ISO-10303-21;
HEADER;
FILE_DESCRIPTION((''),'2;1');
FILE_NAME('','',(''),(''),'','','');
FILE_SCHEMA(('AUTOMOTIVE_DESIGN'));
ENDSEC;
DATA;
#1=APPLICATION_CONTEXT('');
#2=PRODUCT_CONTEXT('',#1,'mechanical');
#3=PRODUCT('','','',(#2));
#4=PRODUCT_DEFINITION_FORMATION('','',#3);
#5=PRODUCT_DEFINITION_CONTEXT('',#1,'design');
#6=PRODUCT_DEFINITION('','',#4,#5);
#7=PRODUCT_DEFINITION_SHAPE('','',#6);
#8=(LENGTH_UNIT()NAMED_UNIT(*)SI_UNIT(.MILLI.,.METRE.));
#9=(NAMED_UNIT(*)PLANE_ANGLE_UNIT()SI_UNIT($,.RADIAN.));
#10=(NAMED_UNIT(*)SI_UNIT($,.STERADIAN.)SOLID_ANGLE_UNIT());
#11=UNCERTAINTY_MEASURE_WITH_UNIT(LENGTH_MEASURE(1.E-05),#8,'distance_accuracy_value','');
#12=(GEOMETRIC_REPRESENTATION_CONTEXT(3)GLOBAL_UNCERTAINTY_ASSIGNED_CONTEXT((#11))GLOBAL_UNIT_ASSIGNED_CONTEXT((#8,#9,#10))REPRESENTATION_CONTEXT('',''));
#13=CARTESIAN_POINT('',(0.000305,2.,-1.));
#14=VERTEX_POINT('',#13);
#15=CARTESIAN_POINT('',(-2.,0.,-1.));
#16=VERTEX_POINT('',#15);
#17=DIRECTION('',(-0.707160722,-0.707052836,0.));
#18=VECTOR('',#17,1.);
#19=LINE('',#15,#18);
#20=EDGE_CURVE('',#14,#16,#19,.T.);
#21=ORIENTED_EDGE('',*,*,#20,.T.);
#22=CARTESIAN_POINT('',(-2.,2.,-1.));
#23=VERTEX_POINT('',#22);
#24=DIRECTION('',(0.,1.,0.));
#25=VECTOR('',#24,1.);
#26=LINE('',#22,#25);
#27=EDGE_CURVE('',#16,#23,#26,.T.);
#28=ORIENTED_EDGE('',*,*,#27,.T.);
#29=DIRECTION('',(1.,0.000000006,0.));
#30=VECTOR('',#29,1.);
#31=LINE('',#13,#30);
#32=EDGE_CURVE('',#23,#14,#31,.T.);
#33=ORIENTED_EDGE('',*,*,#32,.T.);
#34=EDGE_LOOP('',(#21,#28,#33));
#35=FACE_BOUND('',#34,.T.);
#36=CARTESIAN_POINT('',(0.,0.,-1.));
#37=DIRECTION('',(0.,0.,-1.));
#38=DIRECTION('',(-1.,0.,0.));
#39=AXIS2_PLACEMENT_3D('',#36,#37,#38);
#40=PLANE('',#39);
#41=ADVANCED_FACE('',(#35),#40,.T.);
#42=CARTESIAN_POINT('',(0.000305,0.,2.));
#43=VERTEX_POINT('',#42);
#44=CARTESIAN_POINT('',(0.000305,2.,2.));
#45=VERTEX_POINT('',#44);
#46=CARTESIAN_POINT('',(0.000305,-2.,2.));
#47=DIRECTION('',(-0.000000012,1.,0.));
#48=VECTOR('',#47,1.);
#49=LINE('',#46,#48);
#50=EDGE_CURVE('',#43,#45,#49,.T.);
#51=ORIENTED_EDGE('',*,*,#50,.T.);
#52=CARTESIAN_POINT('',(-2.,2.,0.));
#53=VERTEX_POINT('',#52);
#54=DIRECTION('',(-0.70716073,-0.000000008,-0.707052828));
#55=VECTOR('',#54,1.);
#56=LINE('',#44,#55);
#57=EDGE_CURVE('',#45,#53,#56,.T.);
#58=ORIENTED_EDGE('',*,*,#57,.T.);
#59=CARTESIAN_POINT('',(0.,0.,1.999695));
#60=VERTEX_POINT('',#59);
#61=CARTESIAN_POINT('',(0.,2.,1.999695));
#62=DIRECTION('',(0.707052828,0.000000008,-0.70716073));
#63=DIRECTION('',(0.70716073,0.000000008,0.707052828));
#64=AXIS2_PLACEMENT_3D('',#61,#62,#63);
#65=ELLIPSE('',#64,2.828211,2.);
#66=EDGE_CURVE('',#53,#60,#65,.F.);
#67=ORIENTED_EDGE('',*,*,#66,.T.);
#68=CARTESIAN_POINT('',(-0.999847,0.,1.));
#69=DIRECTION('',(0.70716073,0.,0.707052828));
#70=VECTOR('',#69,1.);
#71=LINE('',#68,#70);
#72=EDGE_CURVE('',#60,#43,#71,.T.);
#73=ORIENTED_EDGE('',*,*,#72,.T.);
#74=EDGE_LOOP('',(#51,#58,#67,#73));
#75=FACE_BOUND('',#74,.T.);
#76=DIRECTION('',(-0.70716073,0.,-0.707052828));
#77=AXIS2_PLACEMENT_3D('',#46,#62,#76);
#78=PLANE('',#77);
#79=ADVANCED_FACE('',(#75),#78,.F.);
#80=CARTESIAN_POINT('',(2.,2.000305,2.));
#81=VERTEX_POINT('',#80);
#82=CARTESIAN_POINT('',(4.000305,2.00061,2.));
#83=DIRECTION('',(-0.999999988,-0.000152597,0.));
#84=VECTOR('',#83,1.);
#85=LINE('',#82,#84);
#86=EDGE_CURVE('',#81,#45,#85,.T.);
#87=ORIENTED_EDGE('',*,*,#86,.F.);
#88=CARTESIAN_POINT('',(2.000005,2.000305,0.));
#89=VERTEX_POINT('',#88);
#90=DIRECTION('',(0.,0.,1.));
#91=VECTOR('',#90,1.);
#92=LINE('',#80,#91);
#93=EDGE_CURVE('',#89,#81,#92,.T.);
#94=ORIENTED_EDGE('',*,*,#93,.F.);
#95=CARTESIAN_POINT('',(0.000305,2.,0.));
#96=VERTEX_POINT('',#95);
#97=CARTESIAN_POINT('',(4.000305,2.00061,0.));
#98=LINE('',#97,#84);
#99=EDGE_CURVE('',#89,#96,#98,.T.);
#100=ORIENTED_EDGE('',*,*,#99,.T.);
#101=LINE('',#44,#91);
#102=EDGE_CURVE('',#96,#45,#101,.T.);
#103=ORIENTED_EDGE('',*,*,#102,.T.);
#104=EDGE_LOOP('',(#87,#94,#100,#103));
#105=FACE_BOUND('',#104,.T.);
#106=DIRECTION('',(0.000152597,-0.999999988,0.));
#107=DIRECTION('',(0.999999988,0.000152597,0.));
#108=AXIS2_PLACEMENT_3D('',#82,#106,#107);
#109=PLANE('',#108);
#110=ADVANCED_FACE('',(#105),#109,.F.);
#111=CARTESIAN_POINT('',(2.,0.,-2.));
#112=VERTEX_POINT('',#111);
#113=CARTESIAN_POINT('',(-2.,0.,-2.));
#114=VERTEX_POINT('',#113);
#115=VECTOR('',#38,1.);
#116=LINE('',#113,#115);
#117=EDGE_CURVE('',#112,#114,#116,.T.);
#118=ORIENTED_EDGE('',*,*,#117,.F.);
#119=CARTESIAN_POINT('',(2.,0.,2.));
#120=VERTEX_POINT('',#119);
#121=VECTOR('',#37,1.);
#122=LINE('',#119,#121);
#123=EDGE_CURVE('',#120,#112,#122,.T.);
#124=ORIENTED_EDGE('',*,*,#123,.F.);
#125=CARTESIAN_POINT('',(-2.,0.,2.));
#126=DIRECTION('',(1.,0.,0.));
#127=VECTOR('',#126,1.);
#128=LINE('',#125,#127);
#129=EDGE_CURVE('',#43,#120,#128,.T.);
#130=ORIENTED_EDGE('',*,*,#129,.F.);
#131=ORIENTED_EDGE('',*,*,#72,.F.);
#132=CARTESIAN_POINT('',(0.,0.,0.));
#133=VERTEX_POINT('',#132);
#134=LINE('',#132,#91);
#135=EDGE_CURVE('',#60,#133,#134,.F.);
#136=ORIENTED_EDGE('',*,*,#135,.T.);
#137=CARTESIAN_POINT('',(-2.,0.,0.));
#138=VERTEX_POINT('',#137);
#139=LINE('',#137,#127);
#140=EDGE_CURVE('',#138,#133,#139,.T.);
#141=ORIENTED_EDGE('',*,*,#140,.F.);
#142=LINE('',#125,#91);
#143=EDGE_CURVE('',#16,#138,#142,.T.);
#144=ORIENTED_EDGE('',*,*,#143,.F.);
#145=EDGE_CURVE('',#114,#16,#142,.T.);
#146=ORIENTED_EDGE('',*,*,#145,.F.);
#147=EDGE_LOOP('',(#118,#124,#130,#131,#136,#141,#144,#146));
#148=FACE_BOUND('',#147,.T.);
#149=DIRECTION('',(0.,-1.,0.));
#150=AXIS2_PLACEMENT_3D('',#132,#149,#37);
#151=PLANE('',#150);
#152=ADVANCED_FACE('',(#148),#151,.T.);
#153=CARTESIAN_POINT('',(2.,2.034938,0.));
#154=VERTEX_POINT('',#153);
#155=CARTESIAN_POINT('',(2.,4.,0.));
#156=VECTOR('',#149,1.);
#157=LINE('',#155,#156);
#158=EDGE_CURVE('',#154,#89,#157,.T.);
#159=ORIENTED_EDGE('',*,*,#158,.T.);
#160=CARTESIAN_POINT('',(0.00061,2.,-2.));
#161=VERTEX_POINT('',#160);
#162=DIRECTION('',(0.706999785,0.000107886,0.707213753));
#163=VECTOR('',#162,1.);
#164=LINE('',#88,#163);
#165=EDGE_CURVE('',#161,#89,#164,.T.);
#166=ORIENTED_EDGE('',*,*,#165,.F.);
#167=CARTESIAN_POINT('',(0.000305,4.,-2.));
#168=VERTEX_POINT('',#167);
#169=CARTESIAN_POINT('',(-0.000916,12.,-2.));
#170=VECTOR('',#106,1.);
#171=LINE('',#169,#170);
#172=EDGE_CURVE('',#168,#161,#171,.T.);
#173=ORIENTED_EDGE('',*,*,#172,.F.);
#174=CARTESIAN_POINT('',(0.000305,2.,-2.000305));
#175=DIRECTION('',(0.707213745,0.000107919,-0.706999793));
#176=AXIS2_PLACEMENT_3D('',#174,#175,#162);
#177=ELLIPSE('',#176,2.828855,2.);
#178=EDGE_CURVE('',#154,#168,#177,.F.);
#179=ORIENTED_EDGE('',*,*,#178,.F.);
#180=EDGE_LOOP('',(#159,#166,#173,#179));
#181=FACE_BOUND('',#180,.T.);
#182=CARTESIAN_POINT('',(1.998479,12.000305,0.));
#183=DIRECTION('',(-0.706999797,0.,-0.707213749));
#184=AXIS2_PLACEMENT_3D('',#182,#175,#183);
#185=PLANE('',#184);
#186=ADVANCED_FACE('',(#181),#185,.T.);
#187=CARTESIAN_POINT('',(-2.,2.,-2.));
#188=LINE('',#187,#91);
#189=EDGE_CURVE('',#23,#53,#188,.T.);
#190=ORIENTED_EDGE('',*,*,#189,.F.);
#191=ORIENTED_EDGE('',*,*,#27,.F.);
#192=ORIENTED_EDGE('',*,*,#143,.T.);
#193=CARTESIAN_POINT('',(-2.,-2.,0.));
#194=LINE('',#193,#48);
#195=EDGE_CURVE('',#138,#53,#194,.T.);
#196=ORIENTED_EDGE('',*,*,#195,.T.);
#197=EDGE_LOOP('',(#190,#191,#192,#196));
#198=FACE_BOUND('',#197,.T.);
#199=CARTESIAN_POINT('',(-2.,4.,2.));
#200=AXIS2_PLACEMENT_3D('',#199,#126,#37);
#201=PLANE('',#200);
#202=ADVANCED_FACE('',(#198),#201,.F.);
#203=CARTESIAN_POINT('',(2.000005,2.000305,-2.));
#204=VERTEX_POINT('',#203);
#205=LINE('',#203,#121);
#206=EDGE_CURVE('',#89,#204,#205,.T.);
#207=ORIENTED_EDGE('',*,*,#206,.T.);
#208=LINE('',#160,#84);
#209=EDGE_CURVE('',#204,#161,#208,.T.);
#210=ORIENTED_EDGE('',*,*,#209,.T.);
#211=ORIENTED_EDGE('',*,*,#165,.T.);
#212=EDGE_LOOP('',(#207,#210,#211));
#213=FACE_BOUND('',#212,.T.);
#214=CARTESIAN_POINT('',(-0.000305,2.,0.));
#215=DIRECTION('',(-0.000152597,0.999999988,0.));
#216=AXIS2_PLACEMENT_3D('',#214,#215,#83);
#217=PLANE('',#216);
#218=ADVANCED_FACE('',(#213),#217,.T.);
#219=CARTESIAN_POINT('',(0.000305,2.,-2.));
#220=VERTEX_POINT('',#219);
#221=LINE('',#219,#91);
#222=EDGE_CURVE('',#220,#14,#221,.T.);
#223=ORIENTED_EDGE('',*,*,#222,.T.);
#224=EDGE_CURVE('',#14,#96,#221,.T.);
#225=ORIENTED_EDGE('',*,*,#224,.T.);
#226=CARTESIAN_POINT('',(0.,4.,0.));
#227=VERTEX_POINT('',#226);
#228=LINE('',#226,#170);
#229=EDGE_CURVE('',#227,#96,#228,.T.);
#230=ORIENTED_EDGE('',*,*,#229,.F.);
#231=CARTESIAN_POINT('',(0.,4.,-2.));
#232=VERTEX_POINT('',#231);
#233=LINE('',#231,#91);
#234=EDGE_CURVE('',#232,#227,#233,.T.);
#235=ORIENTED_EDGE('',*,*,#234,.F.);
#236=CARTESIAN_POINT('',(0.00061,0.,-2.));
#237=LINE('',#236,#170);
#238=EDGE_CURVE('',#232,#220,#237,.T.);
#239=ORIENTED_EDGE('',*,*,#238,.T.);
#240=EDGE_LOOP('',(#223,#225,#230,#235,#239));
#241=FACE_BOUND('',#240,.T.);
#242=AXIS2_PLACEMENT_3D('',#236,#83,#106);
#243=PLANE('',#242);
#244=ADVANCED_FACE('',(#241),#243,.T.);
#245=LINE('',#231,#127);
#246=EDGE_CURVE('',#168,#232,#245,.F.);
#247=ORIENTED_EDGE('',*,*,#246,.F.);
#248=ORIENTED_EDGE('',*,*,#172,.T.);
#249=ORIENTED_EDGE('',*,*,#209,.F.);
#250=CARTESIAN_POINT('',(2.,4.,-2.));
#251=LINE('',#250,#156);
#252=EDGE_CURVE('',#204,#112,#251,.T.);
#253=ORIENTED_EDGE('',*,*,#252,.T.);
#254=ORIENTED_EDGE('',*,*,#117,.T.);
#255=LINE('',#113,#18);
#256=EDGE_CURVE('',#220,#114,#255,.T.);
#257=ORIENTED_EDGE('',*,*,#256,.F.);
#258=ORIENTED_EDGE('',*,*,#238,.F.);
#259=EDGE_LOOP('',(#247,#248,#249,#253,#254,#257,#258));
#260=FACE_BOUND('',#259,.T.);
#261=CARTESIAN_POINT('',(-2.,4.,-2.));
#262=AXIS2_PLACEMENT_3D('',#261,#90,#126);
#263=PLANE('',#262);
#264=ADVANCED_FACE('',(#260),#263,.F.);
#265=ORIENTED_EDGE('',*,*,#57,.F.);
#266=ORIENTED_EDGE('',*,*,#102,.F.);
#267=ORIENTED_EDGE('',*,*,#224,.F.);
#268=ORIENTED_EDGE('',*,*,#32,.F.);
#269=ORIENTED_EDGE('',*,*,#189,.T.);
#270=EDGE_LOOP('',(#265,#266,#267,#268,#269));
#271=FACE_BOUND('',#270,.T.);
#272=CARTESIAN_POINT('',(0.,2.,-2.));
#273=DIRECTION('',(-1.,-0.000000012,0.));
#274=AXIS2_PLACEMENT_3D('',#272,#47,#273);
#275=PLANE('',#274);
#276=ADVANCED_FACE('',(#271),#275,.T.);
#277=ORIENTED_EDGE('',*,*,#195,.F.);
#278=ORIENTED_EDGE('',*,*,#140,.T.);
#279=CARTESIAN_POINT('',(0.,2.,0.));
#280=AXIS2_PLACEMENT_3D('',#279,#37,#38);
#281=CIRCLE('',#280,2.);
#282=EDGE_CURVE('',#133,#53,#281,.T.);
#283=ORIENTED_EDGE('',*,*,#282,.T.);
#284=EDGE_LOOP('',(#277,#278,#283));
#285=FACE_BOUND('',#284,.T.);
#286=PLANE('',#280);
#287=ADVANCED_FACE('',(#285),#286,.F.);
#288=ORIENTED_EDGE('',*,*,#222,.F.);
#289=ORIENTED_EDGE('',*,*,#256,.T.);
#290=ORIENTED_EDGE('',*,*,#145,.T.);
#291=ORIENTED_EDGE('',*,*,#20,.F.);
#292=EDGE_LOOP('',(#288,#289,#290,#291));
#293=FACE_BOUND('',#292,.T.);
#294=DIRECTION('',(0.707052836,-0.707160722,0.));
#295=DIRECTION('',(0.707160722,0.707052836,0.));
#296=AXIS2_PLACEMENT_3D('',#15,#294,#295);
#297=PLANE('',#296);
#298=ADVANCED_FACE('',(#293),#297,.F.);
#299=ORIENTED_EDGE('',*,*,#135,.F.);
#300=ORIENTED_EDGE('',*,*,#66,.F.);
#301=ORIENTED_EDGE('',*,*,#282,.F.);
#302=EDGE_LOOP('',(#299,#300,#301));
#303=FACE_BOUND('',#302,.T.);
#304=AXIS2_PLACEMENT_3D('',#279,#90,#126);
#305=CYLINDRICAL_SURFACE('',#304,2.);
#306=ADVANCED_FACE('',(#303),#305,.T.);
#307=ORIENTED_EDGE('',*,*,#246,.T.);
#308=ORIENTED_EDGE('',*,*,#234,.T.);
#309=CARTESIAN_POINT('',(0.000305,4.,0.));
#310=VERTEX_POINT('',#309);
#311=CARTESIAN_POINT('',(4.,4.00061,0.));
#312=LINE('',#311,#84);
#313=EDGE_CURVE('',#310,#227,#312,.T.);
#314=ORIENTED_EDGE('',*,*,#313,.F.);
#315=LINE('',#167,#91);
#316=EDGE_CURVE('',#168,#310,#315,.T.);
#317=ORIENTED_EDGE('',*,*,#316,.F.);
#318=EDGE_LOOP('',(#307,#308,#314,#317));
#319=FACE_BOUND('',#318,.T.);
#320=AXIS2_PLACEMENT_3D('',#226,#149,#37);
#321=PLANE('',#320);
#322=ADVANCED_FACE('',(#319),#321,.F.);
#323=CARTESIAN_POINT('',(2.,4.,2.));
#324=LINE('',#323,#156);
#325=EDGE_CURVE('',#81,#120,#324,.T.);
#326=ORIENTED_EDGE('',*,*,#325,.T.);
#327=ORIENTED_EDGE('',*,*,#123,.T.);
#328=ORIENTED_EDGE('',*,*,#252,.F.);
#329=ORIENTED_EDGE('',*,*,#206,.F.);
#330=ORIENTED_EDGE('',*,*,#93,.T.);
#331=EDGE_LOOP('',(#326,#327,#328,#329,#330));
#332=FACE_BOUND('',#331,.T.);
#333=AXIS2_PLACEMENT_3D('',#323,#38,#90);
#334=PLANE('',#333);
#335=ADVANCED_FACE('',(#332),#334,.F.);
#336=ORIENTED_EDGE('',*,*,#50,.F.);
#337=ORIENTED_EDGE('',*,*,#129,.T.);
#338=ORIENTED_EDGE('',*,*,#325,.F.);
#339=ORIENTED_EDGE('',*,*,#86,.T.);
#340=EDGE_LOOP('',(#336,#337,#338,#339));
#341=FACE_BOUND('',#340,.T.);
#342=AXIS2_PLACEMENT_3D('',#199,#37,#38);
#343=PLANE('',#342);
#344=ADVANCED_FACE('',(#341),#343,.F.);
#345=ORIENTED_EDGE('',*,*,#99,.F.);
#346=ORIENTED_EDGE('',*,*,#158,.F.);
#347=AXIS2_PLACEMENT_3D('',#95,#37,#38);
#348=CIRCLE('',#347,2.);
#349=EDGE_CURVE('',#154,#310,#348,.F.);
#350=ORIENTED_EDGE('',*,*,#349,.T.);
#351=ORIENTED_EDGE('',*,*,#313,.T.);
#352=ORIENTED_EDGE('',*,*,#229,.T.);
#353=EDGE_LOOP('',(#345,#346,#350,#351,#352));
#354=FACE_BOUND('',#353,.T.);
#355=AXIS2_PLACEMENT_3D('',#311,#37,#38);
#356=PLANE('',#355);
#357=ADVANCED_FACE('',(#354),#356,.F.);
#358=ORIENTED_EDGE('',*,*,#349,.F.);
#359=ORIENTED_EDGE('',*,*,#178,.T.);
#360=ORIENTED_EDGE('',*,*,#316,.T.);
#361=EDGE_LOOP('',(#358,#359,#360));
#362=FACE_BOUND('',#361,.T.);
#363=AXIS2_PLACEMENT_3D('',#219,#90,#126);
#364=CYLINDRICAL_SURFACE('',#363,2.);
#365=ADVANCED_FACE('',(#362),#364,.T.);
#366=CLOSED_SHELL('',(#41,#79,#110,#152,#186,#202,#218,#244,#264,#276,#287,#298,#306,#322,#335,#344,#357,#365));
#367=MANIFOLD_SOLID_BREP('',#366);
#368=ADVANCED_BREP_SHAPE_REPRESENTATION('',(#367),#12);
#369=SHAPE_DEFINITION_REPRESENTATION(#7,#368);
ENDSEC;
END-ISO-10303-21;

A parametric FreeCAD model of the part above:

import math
import FreeCAD as App
import Part
import Sketcher
from FreeCAD import Vector
Q = App.Units.Quantity


def add_polygon(sketch, points):
    """Adds a closed chain of lines whose ends are joined by coincident constraints."""
    first, n = sketch.GeometryCount, len(points)
    for a, b in zip(points, points[1:] + points[:1]):
        sketch.addGeometry(Part.LineSegment(App.Vector(*a, 0), App.Vector(*b, 0)), False)
    for i in range(n):
        sketch.addConstraint(Sketcher.Constraint("Coincident", first + i, 2, first + (i + 1) % n, 1))

doc = App.newDocument("Part")
params = doc.addObject("Spreadsheet::Sheet", "Params")
for row, (alias, value) in enumerate([
    ("sketch1_width", "4 mm"),
    ("pad1_length", "4 mm"),
    ("sketch2_radius", "2 mm"),
    ("pocket1_length", "4 mm"),
    ("sketch3_height", "2 mm"),
    ("pocket2_length", "4 mm"),
    ("sketch4_width", "2 mm"),
    ("pocket3_length", "4 mm"),
    ("sketch5_height", "2 mm"),
    ("pocket4_length", "10 mm"),
    ("sketch6_height", "2 mm"),
    ("pocket5_length", "1 mm"),
    ("sketch7_radius", "2 mm"),
    ("pocket6_length", "2 mm"),
], start=1):
    params.set(f"A{row}", alias)
    params.set(f"B{row}", "=" + value)
    params.setAlias(f"B{row}", alias)

body = doc.addObject("PartDesign::Body", "Body")

# Sketch on XZ plane
sketch1 = body.newObject("Sketcher::SketchObject", "Sketch")
sketch1.AttachmentSupport = (doc.getObject("XZ_Plane"), [""])
sketch1.MapMode = "FlatFace"
add_polygon(sketch1, [(-2, -2), (-2, 2), (2, 2), (2, -2)])  # lines 0-3
sketch1.addConstraint([
    Sketcher.Constraint("Vertical", 0),
    Sketcher.Constraint("Horizontal", 1),
    Sketcher.Constraint("Vertical", 2),
    Sketcher.Constraint("Horizontal", 3),
    Sketcher.Constraint("Symmetric", 0, 2, 2, 2, -1, 1),
    Sketcher.Constraint("Equal", 3, 0),
    Sketcher.Constraint("DistanceX", 1, 1, 1, 2, Q("4 mm")),
])
sketch1.setExpression("Constraints[10]", "Params.sketch1_width")
pad1 = body.newObject("PartDesign::Pad", "Pad")
pad1.Profile = sketch1
pad1.setExpression("Length", "Params.pad1_length")
pad1.Reversed = True

# Sketch on XY plane
sketch2 = body.newObject("Sketcher::SketchObject", "Sketch001")
sketch2.AttachmentSupport = (doc.getObject("XY_Plane"), [""])
sketch2.MapMode = "FlatFace"
sketch2.AttachmentOffset = App.Placement(Vector(0, 0, 2), App.Rotation())
add_polygon(sketch2, [(0, 2), (0, 4), (-2, 4), (-2, 2)])  # lines 0-3
sketch2.addGeometry(Part.LineSegment(Vector(2, 4, 0), Vector(0, 4, 0)), False)  # 4
sketch2.addGeometry(Part.ArcOfCircle(Part.Circle(Vector(0, 2, 0), Vector(0, 0, 1), 2), math.radians(1), math.radians(90)), False)  # 5
sketch2.addGeometry(Part.LineSegment(Vector(2, 2, 0), Vector(2, 4, 0)), False)  # 6
sketch2.addConstraint([
    Sketcher.Constraint("Coincident", 4, 2, 5, 2),
    Sketcher.Constraint("Coincident", 5, 1, 6, 1),
    Sketcher.Constraint("Coincident", 6, 2, 4, 1),
    Sketcher.Constraint("Horizontal", 1),
    Sketcher.Constraint("Vertical", 2),
    Sketcher.Constraint("Horizontal", 3),
    Sketcher.Constraint("Horizontal", 4),
    Sketcher.Constraint("Vertical", 6),
    Sketcher.Constraint("Coincident", 3, 2, 5, 3),
    Sketcher.Constraint("Coincident", 4, 2, 0, 2),
    Sketcher.Constraint("PointOnObject", 0, 2, -2),
    Sketcher.Constraint("Equal", 1, 4),
    Sketcher.Constraint("Equal", 4, 2),
    Sketcher.Constraint("Radius", 5, Q("2 mm")),
    Sketcher.Constraint("DistanceY", -1, 1, 5, 3, Q("2 mm")),
    Sketcher.Constraint("DistanceY", 6, 1, 6, 2, Q("1.965062 mm")),
])
sketch2.setExpression("Constraints[17]", "Params.sketch2_radius")
pocket1 = body.newObject("PartDesign::Pocket", "Pocket")
pocket1.Profile = sketch2
pocket1.setExpression("Length", "Params.pocket1_length")

# Sketch on XZ plane
sketch3 = body.newObject("Sketcher::SketchObject", "Sketch002")
sketch3.AttachmentSupport = (doc.getObject("XZ_Plane"), [""])
sketch3.MapMode = "FlatFace"
sketch3.AttachmentOffset = App.Placement(Vector(0, 0, -2), App.Rotation())
add_polygon(sketch3, [(0, 2), (-2, 0), (-2, 2)])  # lines 0-2
sketch3.addConstraint([
    Sketcher.Constraint("Vertical", 1),
    Sketcher.Constraint("Horizontal", 2),
    Sketcher.Constraint("PointOnObject", 0, 2, -1),
    Sketcher.Constraint("DistanceY", 1, 1, 1, 2, Q("2 mm")),
    Sketcher.Constraint("DistanceX", 0, 2, -1, 1, Q("2 mm")),
    Sketcher.Constraint("DistanceX", 2, 1, 2, 2, Q("2.000305 mm")),
])
sketch3.setExpression("Constraints[6]", "Params.sketch3_height")
pocket2 = body.newObject("PartDesign::Pocket", "Pocket001")
pocket2.Profile = sketch3
pocket2.setExpression("Length", "Params.pocket2_length")
pocket2.Reversed = True

# Sketch on an angled plane
sketch4 = body.newObject("Sketcher::SketchObject", "Sketch003")
sketch4.Placement = App.Placement(Vector(0.00061, 0, 0), App.Rotation(Vector(0, 0, 1), Vector(-0.000152597, 0.999999988, 0), Vector(-0.999999988, -0.000152597, 0), "ZXY"))
add_polygon(sketch4, [(0, 4), (0, 2), (2, 2), (2, 4)])  # lines 0-3
sketch4.addConstraint([
    Sketcher.Constraint("Vertical", 0),
    Sketcher.Constraint("Horizontal", 1),
    Sketcher.Constraint("Vertical", 2),
    Sketcher.Constraint("Horizontal", 3),
    Sketcher.Constraint("PointOnObject", 0, 2, -2),
    Sketcher.Constraint("Equal", 3, 0),
    Sketcher.Constraint("DistanceX", 1, 1, 1, 2, Q("2 mm")),
    Sketcher.Constraint("DistanceY", -1, 1, 0, 2, Q("2 mm")),
])
sketch4.setExpression("Constraints[10]", "Params.sketch4_width")
pocket3 = body.newObject("PartDesign::Pocket", "Pocket002")
pocket3.Profile = sketch4
pocket3.setExpression("Length", "Params.pocket3_length")

# Sketch on an angled plane
sketch5 = body.newObject("Sketcher::SketchObject", "Sketch004")
sketch5.Placement = App.Placement(Vector(-0.000305, 2, 0), App.Rotation(Vector(0.999999988, 0.000152597, 0), Vector(0, 0, -0.999999999), Vector(-0.000152597, 0.999999988, 0), "ZXY"))
add_polygon(sketch5, [(0, 2), (2, 0), (2, 2)])  # lines 0-2
sketch5.addConstraint([
    Sketcher.Constraint("Vertical", 1),
    Sketcher.Constraint("Horizontal", 2),
    Sketcher.Constraint("PointOnObject", 0, 2, -1),
    Sketcher.Constraint("DistanceY", 1, 1, 1, 2, Q("2 mm")),
    Sketcher.Constraint("Distance", 0, Q("2.827999 mm")),
    Sketcher.Constraint("DistanceX", -1, 1, 0, 2, Q("2.000311 mm")),
])
sketch5.setExpression("Constraints[6]", "Params.sketch5_height")
pocket4 = body.newObject("PartDesign::Pocket", "Pocket003")
pocket4.Profile = sketch5
pocket4.setExpression("Length", "Params.pocket4_length")
pocket4.Reversed = True

# Sketch on XY plane
sketch6 = body.newObject("Sketcher::SketchObject", "Sketch005")
sketch6.AttachmentSupport = (doc.getObject("XY_Plane"), [""])
sketch6.MapMode = "FlatFace"
sketch6.AttachmentOffset = App.Placement(Vector(0, 0, -2), App.Rotation())
add_polygon(sketch6, [(0, 2), (-2, 0), (-2, 2)])  # lines 0-2
sketch6.addConstraint([
    Sketcher.Constraint("Vertical", 1),
    Sketcher.Constraint("Horizontal", 2),
    Sketcher.Constraint("PointOnObject", 0, 2, -1),
    Sketcher.Constraint("DistanceY", 1, 1, 1, 2, Q("2 mm")),
    Sketcher.Constraint("DistanceX", 0, 2, -1, 1, Q("2 mm")),
    Sketcher.Constraint("DistanceX", 2, 1, 2, 2, Q("2.000305 mm")),
])
sketch6.setExpression("Constraints[6]", "Params.sketch6_height")
pocket5 = body.newObject("PartDesign::Pocket", "Pocket004")
pocket5.Profile = sketch6
pocket5.setExpression("Length", "Params.pocket5_length")
pocket5.Reversed = True

# Sketch on XY plane
sketch7 = body.newObject("Sketcher::SketchObject", "Sketch006")
sketch7.AttachmentSupport = (doc.getObject("XY_Plane"), [""])
sketch7.MapMode = "FlatFace"
sketch7.AttachmentOffset = App.Placement(Vector(0, 0, 2), App.Rotation())
sketch7.addGeometry([
    Part.LineSegment(Vector(-2, 2, 0), Vector(-2, 0, 0)),
    Part.LineSegment(Vector(-2, 0, 0), Vector(0, 0, 0)),
    Part.ArcOfCircle(Part.Circle(Vector(0, 2, 0), Vector(0, 0, 1), 2), math.radians(180), math.radians(270)),
], False)
sketch7.addConstraint([
    Sketcher.Constraint("Coincident", 0, 2, 1, 1),
    Sketcher.Constraint("Coincident", 1, 2, 2, 2),
    Sketcher.Constraint("Tangent", 2, 1, 0, 1),
    Sketcher.Constraint("Vertical", 0),
    Sketcher.Constraint("Horizontal", 1),
    Sketcher.Constraint("PointOnObject", 2, 3, -2),
    Sketcher.Constraint("PointOnObject", 0, 2, -1),
    Sketcher.Constraint("Radius", 2, Q("2 mm")),
    Sketcher.Constraint("DistanceX", 1, 1, 1, 2, Q("2.000305 mm")),
])
sketch7.setExpression("Constraints[7]", "Params.sketch7_radius")
pocket6 = body.newObject("PartDesign::Pocket", "Pocket005")
pocket6.Profile = sketch7
pocket6.setExpression("Length", "Params.pocket6_length")

doc.recompute()
